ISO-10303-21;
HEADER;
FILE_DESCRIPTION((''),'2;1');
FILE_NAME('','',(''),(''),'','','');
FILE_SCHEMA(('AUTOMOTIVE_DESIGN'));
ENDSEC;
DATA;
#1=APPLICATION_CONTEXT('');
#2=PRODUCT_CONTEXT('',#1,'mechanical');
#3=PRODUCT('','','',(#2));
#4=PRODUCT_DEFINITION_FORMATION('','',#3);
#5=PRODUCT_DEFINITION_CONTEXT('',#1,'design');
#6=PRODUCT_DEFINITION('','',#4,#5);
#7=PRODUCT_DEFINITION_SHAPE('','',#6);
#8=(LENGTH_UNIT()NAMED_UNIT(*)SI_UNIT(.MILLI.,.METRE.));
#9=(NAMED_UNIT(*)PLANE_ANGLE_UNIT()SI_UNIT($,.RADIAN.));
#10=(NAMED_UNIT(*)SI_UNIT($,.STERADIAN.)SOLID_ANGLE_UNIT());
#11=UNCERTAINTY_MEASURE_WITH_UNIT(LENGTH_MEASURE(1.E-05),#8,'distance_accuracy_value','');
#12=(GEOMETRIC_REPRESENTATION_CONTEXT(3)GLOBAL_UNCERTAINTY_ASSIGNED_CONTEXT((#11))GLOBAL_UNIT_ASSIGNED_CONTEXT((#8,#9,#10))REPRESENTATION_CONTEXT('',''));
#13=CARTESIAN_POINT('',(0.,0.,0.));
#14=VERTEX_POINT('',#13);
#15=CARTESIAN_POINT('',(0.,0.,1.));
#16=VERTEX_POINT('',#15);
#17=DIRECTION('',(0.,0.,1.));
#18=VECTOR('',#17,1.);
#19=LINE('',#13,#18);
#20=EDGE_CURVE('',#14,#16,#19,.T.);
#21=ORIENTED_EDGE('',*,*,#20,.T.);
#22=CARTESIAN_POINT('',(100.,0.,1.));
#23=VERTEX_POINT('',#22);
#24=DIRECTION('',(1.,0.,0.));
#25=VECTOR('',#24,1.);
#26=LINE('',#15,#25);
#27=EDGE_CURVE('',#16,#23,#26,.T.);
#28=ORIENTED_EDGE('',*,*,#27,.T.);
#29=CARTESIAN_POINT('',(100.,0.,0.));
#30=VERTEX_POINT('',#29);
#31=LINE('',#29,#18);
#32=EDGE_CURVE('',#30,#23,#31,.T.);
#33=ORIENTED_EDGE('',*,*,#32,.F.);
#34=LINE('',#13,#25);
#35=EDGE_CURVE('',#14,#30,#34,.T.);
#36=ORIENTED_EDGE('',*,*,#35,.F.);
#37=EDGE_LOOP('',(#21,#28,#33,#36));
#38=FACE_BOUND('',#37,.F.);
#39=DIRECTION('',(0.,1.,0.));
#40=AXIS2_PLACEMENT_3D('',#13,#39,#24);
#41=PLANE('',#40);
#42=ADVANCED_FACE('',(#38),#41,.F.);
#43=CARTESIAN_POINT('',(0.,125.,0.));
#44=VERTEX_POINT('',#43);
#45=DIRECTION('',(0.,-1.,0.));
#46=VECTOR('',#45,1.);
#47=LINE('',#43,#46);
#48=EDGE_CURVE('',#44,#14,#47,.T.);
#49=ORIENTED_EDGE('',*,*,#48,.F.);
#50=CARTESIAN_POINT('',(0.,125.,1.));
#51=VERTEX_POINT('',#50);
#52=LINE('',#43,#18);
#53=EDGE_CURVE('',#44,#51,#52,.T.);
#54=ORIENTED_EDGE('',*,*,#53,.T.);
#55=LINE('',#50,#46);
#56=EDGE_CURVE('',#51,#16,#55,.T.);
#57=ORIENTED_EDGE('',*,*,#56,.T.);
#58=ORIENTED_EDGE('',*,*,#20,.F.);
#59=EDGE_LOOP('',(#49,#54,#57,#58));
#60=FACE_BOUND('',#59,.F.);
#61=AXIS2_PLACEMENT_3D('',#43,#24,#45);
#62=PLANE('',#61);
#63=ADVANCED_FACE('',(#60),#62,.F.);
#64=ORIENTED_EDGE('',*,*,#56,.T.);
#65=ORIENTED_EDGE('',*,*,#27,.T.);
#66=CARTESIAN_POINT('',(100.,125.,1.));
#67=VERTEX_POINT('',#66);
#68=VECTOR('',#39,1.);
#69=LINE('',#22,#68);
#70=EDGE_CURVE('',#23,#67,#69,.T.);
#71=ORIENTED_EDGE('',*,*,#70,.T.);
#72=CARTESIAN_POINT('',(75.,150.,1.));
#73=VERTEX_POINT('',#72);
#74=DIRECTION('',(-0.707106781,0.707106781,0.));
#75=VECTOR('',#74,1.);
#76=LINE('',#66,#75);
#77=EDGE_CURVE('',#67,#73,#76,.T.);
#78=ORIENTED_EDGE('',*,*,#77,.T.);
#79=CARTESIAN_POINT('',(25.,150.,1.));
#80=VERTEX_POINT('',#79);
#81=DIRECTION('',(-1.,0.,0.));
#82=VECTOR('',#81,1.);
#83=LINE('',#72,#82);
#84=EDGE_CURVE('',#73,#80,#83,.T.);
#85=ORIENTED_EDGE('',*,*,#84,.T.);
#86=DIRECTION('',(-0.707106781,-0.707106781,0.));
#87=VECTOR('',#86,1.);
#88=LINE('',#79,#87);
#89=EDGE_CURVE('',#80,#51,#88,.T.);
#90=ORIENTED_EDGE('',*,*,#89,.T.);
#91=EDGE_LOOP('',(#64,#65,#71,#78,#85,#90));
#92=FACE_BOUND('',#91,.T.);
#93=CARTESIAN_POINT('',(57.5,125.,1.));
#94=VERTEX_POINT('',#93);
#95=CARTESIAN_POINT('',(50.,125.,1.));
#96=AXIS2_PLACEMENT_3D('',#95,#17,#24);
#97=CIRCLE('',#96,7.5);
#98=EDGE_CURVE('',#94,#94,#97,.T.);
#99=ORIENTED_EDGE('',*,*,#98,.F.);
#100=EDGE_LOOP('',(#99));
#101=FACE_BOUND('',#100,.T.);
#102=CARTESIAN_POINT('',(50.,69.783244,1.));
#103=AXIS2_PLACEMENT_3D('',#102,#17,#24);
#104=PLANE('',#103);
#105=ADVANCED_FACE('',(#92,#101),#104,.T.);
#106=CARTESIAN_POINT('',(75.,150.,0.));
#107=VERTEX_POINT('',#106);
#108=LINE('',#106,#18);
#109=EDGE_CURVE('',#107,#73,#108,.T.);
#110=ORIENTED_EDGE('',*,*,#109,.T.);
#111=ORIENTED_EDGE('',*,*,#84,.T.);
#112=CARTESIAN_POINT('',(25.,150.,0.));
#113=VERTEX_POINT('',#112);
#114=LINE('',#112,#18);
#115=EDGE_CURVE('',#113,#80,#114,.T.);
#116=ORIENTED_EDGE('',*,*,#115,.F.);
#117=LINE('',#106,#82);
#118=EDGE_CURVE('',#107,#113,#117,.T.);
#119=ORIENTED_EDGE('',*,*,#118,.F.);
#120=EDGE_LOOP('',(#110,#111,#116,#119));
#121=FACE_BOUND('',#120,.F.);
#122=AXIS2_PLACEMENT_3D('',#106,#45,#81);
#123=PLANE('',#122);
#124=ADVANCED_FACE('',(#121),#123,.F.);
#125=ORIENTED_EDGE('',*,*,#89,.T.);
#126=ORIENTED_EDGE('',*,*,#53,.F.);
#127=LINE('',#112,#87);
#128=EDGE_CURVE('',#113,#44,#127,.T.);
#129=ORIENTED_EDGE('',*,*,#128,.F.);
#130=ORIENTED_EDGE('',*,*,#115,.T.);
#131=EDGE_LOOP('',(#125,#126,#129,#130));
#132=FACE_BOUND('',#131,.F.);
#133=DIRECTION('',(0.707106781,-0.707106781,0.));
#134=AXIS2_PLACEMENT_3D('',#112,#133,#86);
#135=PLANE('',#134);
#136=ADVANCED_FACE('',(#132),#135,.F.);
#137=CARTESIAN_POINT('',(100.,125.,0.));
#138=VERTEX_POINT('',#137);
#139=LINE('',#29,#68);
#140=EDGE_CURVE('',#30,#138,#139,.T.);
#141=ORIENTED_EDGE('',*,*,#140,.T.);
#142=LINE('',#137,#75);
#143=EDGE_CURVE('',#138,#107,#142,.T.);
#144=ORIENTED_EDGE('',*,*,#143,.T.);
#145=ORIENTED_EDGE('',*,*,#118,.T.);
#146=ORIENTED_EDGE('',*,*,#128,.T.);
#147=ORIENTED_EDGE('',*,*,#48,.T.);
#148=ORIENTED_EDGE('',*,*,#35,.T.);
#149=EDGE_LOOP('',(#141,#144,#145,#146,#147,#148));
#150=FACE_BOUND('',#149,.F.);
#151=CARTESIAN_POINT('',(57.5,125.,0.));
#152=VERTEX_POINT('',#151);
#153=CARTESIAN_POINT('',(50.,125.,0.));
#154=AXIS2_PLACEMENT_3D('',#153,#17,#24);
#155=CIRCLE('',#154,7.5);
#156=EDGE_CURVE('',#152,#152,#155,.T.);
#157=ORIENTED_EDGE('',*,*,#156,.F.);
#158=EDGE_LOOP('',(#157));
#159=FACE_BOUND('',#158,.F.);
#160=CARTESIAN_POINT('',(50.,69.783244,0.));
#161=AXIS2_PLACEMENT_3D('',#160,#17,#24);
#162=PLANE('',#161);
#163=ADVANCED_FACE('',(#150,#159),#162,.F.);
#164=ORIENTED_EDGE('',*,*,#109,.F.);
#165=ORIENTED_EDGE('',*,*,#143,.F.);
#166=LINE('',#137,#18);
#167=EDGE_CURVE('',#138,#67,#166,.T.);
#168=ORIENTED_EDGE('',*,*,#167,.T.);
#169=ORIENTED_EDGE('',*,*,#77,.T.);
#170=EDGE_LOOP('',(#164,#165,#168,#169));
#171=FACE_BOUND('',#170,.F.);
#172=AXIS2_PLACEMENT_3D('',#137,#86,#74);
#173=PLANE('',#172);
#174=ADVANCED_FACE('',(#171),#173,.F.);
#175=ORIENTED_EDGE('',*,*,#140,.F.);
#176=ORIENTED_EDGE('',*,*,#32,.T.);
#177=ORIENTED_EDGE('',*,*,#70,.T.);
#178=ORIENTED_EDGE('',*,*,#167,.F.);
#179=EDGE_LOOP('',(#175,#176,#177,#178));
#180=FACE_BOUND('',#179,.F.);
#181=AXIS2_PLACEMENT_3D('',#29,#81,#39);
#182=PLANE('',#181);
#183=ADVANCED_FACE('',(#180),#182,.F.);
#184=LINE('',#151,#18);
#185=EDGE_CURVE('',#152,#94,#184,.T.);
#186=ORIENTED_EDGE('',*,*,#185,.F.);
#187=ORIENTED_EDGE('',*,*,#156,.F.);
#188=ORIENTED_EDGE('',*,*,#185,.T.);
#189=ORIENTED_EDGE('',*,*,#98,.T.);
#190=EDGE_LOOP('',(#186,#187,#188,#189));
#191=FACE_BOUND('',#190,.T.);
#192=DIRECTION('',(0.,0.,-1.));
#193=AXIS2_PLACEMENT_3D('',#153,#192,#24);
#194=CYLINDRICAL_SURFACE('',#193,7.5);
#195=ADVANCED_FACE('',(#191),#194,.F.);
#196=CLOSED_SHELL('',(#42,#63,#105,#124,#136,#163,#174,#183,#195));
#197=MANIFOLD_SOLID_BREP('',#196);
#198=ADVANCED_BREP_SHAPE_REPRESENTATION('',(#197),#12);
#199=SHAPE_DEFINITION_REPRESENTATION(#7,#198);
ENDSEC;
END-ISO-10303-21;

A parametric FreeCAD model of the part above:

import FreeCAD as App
import Part
import Sketcher
Q = App.Units.Quantity

doc = App.newDocument("Part")
params = doc.addObject("Spreadsheet::Sheet", "Params")
for row, (alias, value) in enumerate([
    ("sketch1_diameter", "15 mm"),
    ("sketch1_width", "100 mm"),
    ("sketch1_width2", "50 mm"),
    ("sketch1_height", "125 mm"),
    ("pad1_length", "1 mm"),
], start=1):
    params.set(f"A{row}", alias)
    params.set(f"B{row}", "=" + value)
    params.setAlias(f"B{row}", alias)

body = doc.addObject("PartDesign::Body", "Body")

# Sketch on XY plane
sketch1 = doc.addObject("Sketcher::SketchObject", "Sketch")
body.addObject(sketch1)
sketch1.AttachmentSupport = (doc.XY_Plane, [""])
sketch1.MapMode = "FlatFace"
sketch1.addGeometry(Part.LineSegment(App.Vector(0, 125, 0), App.Vector(0, 0, 0)), False)
sketch1.addGeometry(Part.LineSegment(App.Vector(0, 0, 0), App.Vector(100, 0, 0)), False)
sketch1.addGeometry(Part.LineSegment(App.Vector(100, 0, 0), App.Vector(100, 125, 0)), False)
sketch1.addGeometry(Part.LineSegment(App.Vector(100, 125, 0), App.Vector(75, 150, 0)), False)
sketch1.addGeometry(Part.LineSegment(App.Vector(75, 150, 0), App.Vector(25, 150, 0)), False)
sketch1.addGeometry(Part.LineSegment(App.Vector(25, 150, 0), App.Vector(0, 125, 0)), False)
sketch1.addGeometry(Part.Circle(App.Vector(50, 125, 0), App.Vector(0, 0, 1), 8), False)
sketch1.addConstraint(Sketcher.Constraint("Coincident", 0, 2, 1, 1))
sketch1.addConstraint(Sketcher.Constraint("Coincident", 1, 2, 2, 1))
sketch1.addConstraint(Sketcher.Constraint("Coincident", 2, 2, 3, 1))
sketch1.addConstraint(Sketcher.Constraint("Coincident", 3, 2, 4, 1))
sketch1.addConstraint(Sketcher.Constraint("Coincident", 4, 2, 5, 1))
sketch1.addConstraint(Sketcher.Constraint("Coincident", 5, 2, 0, 1))
sketch1.addConstraint(Sketcher.Constraint("Vertical", 0))
sketch1.addConstraint(Sketcher.Constraint("Horizontal", 1))
sketch1.addConstraint(Sketcher.Constraint("Vertical", 2))
sketch1.addConstraint(Sketcher.Constraint("Horizontal", 4))
sketch1.addConstraint(Sketcher.Constraint("Coincident", 0, 2, -1, 1))
sketch1.addConstraint(Sketcher.Constraint("Perpendicular", 3, 5))
sketch1.addConstraint(Sketcher.Constraint("Horizontal", 6, 3, 2, 2))
sketch1.addConstraint(Sketcher.Constraint("Horizontal", 2, 2, 5, 2))
sketch1.addConstraint(Sketcher.Constraint("Equal", 3, 5))
sketch1.addConstraint(Sketcher.Constraint("Diameter", 6, Q("15 mm")))
sketch1.addConstraint(Sketcher.Constraint("DistanceX", 1, 1, 1, 2, Q("100 mm")))
sketch1.addConstraint(Sketcher.Constraint("DistanceX", 4, 2, 4, 1, Q("50 mm")))
sketch1.addConstraint(Sketcher.Constraint("DistanceY", 0, 2, 0, 1, Q("125 mm")))
sketch1.addConstraint(Sketcher.Constraint("DistanceX", -1, 1, 6, 3, Q("50 mm")))
sketch1.setExpression("Constraints[15]", "Params.sketch1_diameter")
sketch1.setExpression("Constraints[16]", "Params.sketch1_width")
sketch1.setExpression("Constraints[17]", "Params.sketch1_width2")
sketch1.setExpression("Constraints[18]", "Params.sketch1_height")
pad1 = doc.addObject("PartDesign::Pad", "Pad")
body.addObject(pad1)
pad1.Profile = sketch1
pad1.setExpression("Length", "Params.pad1_length")

doc.recompute()
